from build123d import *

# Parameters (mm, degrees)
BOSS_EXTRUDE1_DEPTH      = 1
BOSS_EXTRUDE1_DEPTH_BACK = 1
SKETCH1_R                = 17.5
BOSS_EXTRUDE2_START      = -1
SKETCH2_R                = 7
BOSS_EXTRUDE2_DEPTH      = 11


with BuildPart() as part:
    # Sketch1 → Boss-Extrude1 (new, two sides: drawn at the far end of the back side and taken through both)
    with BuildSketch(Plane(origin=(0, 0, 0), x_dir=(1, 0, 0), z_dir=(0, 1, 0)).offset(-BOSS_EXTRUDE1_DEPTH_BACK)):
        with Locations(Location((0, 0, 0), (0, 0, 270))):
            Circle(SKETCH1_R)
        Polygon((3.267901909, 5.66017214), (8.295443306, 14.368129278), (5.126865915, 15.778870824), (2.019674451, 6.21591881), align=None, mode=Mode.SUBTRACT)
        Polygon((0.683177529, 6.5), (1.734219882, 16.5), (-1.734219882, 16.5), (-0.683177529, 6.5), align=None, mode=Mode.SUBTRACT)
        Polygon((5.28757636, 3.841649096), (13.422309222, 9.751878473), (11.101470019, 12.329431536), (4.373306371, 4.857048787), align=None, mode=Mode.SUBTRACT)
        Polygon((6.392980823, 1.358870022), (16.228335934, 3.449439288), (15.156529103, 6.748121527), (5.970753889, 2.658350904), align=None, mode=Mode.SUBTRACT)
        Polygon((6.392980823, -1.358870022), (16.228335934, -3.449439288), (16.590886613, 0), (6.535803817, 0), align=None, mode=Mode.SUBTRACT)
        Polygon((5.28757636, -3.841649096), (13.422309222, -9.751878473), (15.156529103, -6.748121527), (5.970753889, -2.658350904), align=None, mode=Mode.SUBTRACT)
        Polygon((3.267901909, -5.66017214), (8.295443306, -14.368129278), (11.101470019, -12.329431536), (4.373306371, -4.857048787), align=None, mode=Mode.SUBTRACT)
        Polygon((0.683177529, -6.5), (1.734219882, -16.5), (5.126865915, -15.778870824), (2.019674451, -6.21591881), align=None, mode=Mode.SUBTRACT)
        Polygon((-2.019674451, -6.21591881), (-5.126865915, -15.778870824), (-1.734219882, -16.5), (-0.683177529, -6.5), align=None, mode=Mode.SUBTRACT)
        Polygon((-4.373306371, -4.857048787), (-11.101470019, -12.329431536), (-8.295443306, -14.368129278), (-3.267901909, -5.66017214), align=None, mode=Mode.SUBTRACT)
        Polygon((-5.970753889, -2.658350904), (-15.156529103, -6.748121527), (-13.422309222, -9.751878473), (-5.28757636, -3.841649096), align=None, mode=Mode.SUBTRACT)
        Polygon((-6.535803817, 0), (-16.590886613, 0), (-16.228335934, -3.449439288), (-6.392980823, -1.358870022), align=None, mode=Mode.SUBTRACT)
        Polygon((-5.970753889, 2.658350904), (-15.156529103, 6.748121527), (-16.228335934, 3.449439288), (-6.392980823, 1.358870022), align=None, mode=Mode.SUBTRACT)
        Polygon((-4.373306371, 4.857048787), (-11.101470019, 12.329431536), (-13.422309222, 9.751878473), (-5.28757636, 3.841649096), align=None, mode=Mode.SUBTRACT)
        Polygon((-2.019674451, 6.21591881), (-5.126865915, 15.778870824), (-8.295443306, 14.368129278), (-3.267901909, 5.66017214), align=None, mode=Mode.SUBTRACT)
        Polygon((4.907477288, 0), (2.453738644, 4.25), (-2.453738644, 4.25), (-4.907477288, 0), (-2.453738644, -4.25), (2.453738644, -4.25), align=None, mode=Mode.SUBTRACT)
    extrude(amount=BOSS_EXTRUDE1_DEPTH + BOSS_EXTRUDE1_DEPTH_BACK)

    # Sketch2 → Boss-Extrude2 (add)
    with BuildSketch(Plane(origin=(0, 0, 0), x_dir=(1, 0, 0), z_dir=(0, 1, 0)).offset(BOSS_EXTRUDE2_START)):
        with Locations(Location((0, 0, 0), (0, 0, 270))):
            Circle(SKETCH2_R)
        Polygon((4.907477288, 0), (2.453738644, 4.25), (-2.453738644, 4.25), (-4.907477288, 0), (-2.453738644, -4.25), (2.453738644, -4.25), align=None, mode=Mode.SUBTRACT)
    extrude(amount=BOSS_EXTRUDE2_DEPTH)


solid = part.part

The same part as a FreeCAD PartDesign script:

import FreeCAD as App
import Part
import Sketcher
from FreeCAD import Vector
Q = App.Units.Quantity


def add_polygon(sketch, points):
    """Adds a closed chain of lines whose ends are joined by coincident constraints."""
    first, n = sketch.GeometryCount, len(points)
    for a, b in zip(points, points[1:] + points[:1]):
        sketch.addGeometry(Part.LineSegment(App.Vector(*a, 0), App.Vector(*b, 0)), False)
    for i in range(n):
        sketch.addConstraint(Sketcher.Constraint("Coincident", first + i, 2, first + (i + 1) % n, 1))

doc = App.newDocument("Part")
body = doc.addObject("PartDesign::Body", "Body")

# Sketch on XZ plane
sketch1 = body.newObject("Sketcher::SketchObject", "Sketch")
sketch1.AttachmentSupport = (doc.getObject("XZ_Plane"), [""])
sketch1.MapMode = "FlatFace"
sketch1.addGeometry(Part.Circle(Vector(0, 0, 0), Vector(0, 0, 1), 17.5), False)  # 0
add_polygon(sketch1, [(-11.1, -12.3), (-4.4, -4.9), (-5.3, -3.8), (-13.4, -9.8)])  # lines 1-4
add_polygon(sketch1, [(-15.2, -6.7), (-6, -2.7), (-6.4, -1.4), (-16.2, -3.4)])  # lines 5-8
add_polygon(sketch1, [(-5.1, -15.8), (-2, -6.2), (-3.3, -5.7), (-8.3, -14.4)])  # lines 9-12
add_polygon(sketch1, [(1.7, -16.5), (0.7, -6.5), (-0.7, -6.5), (-1.7, -16.5)])  # lines 13-16
add_polygon(sketch1, [(-16.6, 0), (-6.5, 0), (-6.4, 1.4), (-16.2, 3.4)])  # lines 17-20
add_polygon(sketch1, [(-15.2, 6.7), (-6, 2.7), (-5.3, 3.8), (-13.4, 9.8)])  # lines 21-24
add_polygon(sketch1, [(-11.1, 12.3), (-4.4, 4.9), (-3.3, 5.7), (-8.3, 14.4)])  # lines 25-28
add_polygon(sketch1, [(-5.1, 15.8), (-2, 6.2), (-0.7, 6.5), (-1.7, 16.5)])  # lines 29-32
add_polygon(sketch1, [(8.3, -14.4), (3.3, -5.7), (2, -6.2), (5.1, -15.8)])  # lines 33-36
add_polygon(sketch1, [(13.4, -9.8), (5.3, -3.8), (4.4, -4.9), (11.1, -12.3)])  # lines 37-40
add_polygon(sketch1, [(16.2, -3.4), (6.4, -1.4), (6, -2.7), (15.2, -6.7)])  # lines 41-44
add_polygon(sketch1, [(2.5, -4.2), (4.9, 0), (2.5, 4.2), (-2.5, 4.2), (-4.9, 0), (-2.5, -4.2)])  # lines 45-50
add_polygon(sketch1, [(1.7, 16.5), (0.7, 6.5), (2, 6.2), (5.1, 15.8)])  # lines 51-54
add_polygon(sketch1, [(8.3, 14.4), (3.3, 5.7), (4.4, 4.9), (11.1, 12.3)])  # lines 55-58
add_polygon(sketch1, [(16.2, 3.4), (6.4, 1.4), (6.5, 0), (16.6, 0)])  # lines 59-62
add_polygon(sketch1, [(13.4, 9.8), (5.3, 3.8), (6, 2.7), (15.2, 6.7)])  # lines 63-66
sketch1.addConstraint([
    Sketcher.Constraint("Horizontal", 14),
    Sketcher.Constraint("Horizontal", 16),
    Sketcher.Constraint("Horizontal", 17),
    Sketcher.Constraint("Horizontal", 47),
    Sketcher.Constraint("Horizontal", 50),
    Sketcher.Constraint("Horizontal", 61),
    Sketcher.Constraint("Coincident", 0, 3, -1, 1),
    Sketcher.Constraint("Symmetric", 13, 2, 30, 2, -1, 1),
    Sketcher.Constraint("Symmetric", 16, 2, 31, 2, -1, 1),
    Sketcher.Constraint("Symmetric", 26, 2, 33, 2, -1, 1),
    Sketcher.Constraint("Symmetric", 29, 2, 34, 2, -1, 1),
    Sketcher.Constraint("Symmetric", 32, 2, 35, 2, -1, 1),
    Sketcher.Constraint("Symmetric", 27, 2, 36, 2, -1, 1),
    Sketcher.Constraint("Symmetric", 22, 2, 37, 2, -1, 1),
    Sketcher.Constraint("Symmetric", 25, 2, 38, 2, -1, 1),
    Sketcher.Constraint("Symmetric", 28, 2, 39, 2, -1, 1),
    Sketcher.Constraint("Symmetric", 23, 2, 40, 2, -1, 1),
    Sketcher.Constraint("Symmetric", 18, 2, 41, 2, -1, 1),
    Sketcher.Constraint("Symmetric", 21, 2, 42, 2, -1, 1),
    Sketcher.Constraint("Symmetric", 24, 2, 43, 2, -1, 1),
    Sketcher.Constraint("Symmetric", 19, 2, 44, 2, -1, 1),
    Sketcher.Constraint("Symmetric", 45, 2, 48, 2, -1, 1),
    Sketcher.Constraint("Symmetric", 46, 2, 49, 2, -1, 1),
    Sketcher.Constraint("Symmetric", 14, 2, 51, 2, -1, 1),
    Sketcher.Constraint("Symmetric", 9, 2, 52, 2, -1, 1),
    Sketcher.Constraint("Symmetric", 12, 2, 53, 2, -1, 1),
    Sketcher.Constraint("Symmetric", 15, 2, 54, 2, -1, 1),
    Sketcher.Constraint("Symmetric", 10, 2, 55, 2, -1, 1),
    Sketcher.Constraint("Symmetric", 1, 2, 56, 2, -1, 1),
    Sketcher.Constraint("Symmetric", 4, 2, 57, 2, -1, 1),
    Sketcher.Constraint("Symmetric", 11, 2, 58, 2, -1, 1),
    Sketcher.Constraint("Symmetric", 6, 2, 59, 2, -1, 1),
    Sketcher.Constraint("Symmetric", 17, 2, 60, 2, -1, 1),
    Sketcher.Constraint("Symmetric", 7, 2, 62, 2, -1, 1),
    Sketcher.Constraint("Symmetric", 2, 2, 63, 2, -1, 1),
    Sketcher.Constraint("Symmetric", 5, 2, 64, 2, -1, 1),
    Sketcher.Constraint("Symmetric", 8, 2, 65, 2, -1, 1),
    Sketcher.Constraint("Symmetric", 3, 2, 66, 2, -1, 1),
    Sketcher.Constraint("Symmetric", 10, 2, 33, 2, -2),
    Sketcher.Constraint("Symmetric", 9, 2, 34, 2, -2),
    Sketcher.Constraint("Symmetric", 12, 2, 35, 2, -2),
    Sketcher.Constraint("Symmetric", 11, 2, 36, 2, -2),
    Sketcher.Constraint("Symmetric", 2, 2, 37, 2, -2),
    Sketcher.Constraint("Symmetric", 1, 2, 38, 2, -2),
    Sketcher.Constraint("Symmetric", 4, 2, 39, 2, -2),
    Sketcher.Constraint("Symmetric", 3, 2, 40, 2, -2),
    Sketcher.Constraint("Symmetric", 6, 2, 41, 2, -2),
    Sketcher.Constraint("Symmetric", 5, 2, 42, 2, -2),
    Sketcher.Constraint("Symmetric", 8, 2, 43, 2, -2),
    Sketcher.Constraint("Symmetric", 7, 2, 44, 2, -2),
    Sketcher.Constraint("Symmetric", 20, 2, 61, 2, -2),
    Sketcher.Constraint("PointOnObject", 45, 2, -1),
    Sketcher.Constraint("Parallel", 2, 4),
    Sketcher.Constraint("Parallel", 6, 8),
    Sketcher.Constraint("Parallel", 10, 12),
    Sketcher.Constraint("Parallel", 15, 18),
    Sketcher.Constraint("Parallel", 18, 20),
    Sketcher.Constraint("Parallel", 12, 21),
    Sketcher.Constraint("Parallel", 11, 22),
    Sketcher.Constraint("Parallel", 22, 24),
    Sketcher.Constraint("Parallel", 4, 25),
    Sketcher.Constraint("Parallel", 3, 26),
    Sketcher.Constraint("Parallel", 26, 28),
    Sketcher.Constraint("Parallel", 8, 29),
    Sketcher.Constraint("Parallel", 7, 30),
    Sketcher.Constraint("Parallel", 30, 32),
    Sketcher.Constraint("Parallel", 24, 45),
    Sketcher.Constraint("Parallel", 33, 46),
    Sketcher.Constraint("Parallel", 45, 48),
    Sketcher.Constraint("Parallel", 41, 52),
    Sketcher.Constraint("Parallel", 52, 54),
    Sketcher.Constraint("Equal", 1, 3),
    Sketcher.Constraint("Equal", 3, 5),
    Sketcher.Constraint("Equal", 2, 6),
    Sketcher.Constraint("Equal", 5, 7),
    Sketcher.Constraint("Equal", 4, 8),
    Sketcher.Constraint("Equal", 6, 10),
    Sketcher.Constraint("Equal", 9, 11),
    Sketcher.Constraint("Equal", 11, 13),
    Sketcher.Constraint("Equal", 10, 18),
    Sketcher.Constraint("Equal", 12, 20),
    Sketcher.Constraint("Equal", 18, 22),
    Sketcher.Constraint("Equal", 22, 26),
    Sketcher.Constraint("Equal", 26, 30),
    Sketcher.Constraint("Diameter", 0, 35.0),
    Sketcher.Constraint("DistanceY", 13, 2, -1, 1, 6.5),
    Sketcher.Constraint("DistanceY", 15, 2, -1, 1, 16.5),
    Sketcher.Constraint("DistanceY", -1, 1, 46, 2, 4.25),
    Sketcher.Constraint("DistanceX", 16, 1, 16, 2, 3.46844),
    Sketcher.Constraint("DistanceX", 47, 2, 47, 1, 4.907477),
])
pad1 = body.newObject("PartDesign::Pad", "Pad")
pad1.Profile = sketch1
pad1.Type = "TwoLengths"
pad1.Length = 1
pad1.Length2 = 1
pad1.Reversed = True

# Sketch on XZ plane
sketch2 = body.newObject("Sketcher::SketchObject", "Sketch001")
sketch2.AttachmentSupport = (doc.getObject("XZ_Plane"), [""])
sketch2.MapMode = "FlatFace"
sketch2.AttachmentOffset = App.Placement(Vector(0, 0, 1), App.Rotation())
sketch2.addGeometry(Part.Circle(Vector(0, 0, 0), Vector(0, 0, 1), 7), False)  # 0
add_polygon(sketch2, [(2.5, -4.2), (4.9, 0), (2.5, 4.2), (-2.5, 4.2), (-4.9, 0), (-2.5, -4.2)])  # lines 1-6
sketch2.addConstraint([
    Sketcher.Constraint("Horizontal", 3),
    Sketcher.Constraint("Horizontal", 6),
    Sketcher.Constraint("Coincident", 0, 3, -1, 1),
    Sketcher.Constraint("Symmetric", 1, 2, 4, 2, -1, 1),
    Sketcher.Constraint("Symmetric", 2, 2, 5, 2, -1, 1),
    Sketcher.Constraint("PointOnObject", 1, 2, -1),
    Sketcher.Constraint("Parallel", 1, 4),
    Sketcher.Constraint("Vertical", 3, 2, 5, 2),
    Sketcher.Constraint("Diameter", 0, 14.0),
    Sketcher.Constraint("Angle", 1, Q("60 deg")),
    Sketcher.Constraint("DistanceY", 5, 2, 3, 2, 8.5),
    Sketcher.Constraint("DistanceX", 3, 2, 3, 1, 4.907477),
])
pad2 = body.newObject("PartDesign::Pad", "Pad001")
pad2.Profile = sketch2
pad2.Length = 11
pad2.Reversed = True

doc.recompute()
